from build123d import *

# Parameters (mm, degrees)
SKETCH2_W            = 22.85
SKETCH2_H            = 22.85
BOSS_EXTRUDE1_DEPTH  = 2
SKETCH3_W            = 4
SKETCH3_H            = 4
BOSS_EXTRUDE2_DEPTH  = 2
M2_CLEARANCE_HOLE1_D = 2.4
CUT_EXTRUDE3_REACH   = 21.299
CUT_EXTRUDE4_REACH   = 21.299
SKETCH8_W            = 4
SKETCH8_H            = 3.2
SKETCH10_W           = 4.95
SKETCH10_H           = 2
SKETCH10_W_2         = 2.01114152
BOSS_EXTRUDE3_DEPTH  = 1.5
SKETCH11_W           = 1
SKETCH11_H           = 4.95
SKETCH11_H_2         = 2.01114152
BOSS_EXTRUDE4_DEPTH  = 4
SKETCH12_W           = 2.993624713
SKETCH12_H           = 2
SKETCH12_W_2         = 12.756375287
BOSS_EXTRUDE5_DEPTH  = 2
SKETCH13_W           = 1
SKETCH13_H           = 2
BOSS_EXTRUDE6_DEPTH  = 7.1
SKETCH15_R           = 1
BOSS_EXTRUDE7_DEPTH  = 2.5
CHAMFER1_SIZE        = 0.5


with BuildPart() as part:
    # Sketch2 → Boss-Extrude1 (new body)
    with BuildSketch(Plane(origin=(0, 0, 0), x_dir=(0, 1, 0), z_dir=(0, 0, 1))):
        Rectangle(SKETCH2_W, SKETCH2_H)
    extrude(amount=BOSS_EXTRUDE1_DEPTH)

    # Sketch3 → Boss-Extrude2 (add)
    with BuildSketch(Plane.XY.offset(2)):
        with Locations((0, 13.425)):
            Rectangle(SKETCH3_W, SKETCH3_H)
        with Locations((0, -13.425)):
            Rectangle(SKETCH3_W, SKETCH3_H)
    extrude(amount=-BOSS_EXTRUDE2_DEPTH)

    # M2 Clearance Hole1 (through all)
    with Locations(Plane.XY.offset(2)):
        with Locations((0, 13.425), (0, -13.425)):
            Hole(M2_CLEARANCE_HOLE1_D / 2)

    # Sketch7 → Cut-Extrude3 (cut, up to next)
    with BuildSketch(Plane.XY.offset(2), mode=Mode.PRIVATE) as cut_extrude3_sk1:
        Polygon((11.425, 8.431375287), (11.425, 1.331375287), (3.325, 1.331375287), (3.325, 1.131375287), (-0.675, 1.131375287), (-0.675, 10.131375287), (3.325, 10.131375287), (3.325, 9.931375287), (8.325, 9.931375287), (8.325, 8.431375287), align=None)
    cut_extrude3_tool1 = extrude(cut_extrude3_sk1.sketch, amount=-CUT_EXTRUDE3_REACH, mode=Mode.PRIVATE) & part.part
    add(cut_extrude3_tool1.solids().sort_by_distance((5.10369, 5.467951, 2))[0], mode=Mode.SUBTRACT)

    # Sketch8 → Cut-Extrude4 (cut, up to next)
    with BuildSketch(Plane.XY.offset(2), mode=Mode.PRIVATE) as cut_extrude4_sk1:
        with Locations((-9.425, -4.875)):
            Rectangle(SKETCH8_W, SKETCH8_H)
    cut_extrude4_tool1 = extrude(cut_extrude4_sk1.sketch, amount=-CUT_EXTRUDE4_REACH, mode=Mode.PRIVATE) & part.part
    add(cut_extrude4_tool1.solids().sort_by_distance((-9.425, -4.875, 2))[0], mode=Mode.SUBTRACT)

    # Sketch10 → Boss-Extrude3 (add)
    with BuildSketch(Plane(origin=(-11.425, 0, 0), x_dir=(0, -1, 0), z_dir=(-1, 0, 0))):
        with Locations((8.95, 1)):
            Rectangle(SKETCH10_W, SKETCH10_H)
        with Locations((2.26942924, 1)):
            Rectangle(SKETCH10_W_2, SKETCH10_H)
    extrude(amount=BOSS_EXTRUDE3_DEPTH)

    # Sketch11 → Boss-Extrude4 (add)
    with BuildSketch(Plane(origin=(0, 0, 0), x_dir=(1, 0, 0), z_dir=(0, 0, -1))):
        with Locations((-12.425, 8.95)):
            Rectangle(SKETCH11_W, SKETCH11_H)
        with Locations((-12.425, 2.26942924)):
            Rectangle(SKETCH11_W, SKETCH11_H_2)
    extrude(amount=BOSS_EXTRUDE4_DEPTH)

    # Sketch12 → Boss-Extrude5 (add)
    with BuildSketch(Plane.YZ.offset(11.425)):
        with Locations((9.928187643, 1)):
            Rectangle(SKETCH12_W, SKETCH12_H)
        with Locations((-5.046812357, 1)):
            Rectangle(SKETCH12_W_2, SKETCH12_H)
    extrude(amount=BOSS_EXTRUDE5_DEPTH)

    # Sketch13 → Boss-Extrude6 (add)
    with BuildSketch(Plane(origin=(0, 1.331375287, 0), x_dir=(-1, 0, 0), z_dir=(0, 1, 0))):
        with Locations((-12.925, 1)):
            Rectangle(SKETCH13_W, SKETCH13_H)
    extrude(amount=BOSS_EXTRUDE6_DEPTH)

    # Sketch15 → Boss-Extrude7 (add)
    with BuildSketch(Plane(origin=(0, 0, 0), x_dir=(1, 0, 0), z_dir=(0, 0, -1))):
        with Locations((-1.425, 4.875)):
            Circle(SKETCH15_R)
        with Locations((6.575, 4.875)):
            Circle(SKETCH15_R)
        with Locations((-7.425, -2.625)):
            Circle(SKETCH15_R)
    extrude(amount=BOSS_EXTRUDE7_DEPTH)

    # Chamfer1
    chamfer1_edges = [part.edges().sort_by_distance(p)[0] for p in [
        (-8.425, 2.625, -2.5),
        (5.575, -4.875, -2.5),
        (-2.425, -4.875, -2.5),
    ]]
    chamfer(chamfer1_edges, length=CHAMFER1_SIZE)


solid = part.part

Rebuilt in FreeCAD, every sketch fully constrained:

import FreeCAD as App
import Part
import Sketcher

V = App.Vector


def edges_at(feature, points):
    """Names of the edges that pass closest to the given points."""
    edges = feature.Shape.Edges
    near = lambda p: min(range(len(edges)), key=lambda i: edges[i].distToShape(Part.Vertex(*p))[0])
    return sorted({f"Edge{near(p) + 1}" for p in points})

doc = App.newDocument("Part")
params = doc.addObject("Spreadsheet::Sheet", "Params")
for row, (alias, value) in enumerate([
    ("sketch1_width", "22.85 mm"),
    ("pad1_length", "2 mm"),
    ("sketch2_width", "4 mm"),
    ("pad2_length", "2 mm"),
    ("sketch3_diameter", "2.4 mm"),
    ("hole_diameter", "2.4 mm"),
    ("sketch4_width", "5 mm"),
    ("sketch4_width2", "4 mm"),
    ("sketch4_height", "9 mm"),
    ("sketch4_width3", "3.1 mm"),
    ("sketch4_height2", "7.1 mm"),
    ("sketch5_width", "4 mm"),
    ("sketch5_height", "3.2 mm"),
    ("sketch6_height", "2 mm"),
    ("sketch6_width", "4.95 mm"),
    ("pad3_length", "1.5 mm"),
    ("sketch7_width", "1 mm"),
    ("sketch7_height", "4.95 mm"),
    ("pad4_length", "4 mm"),
    ("sketch8_height", "2 mm"),
    ("pad5_length", "2 mm"),
    ("sketch9_width", "1 mm"),
    ("sketch9_height", "2 mm"),
    ("pad6_length", "7.1 mm"),
    ("sketch10_diameter", "2 mm"),
    ("pad7_length", "2.5 mm"),
    ("chamfer_size", "0.5 mm"),
], start=1):
    params.set(f"A{row}", alias)
    params.set(f"B{row}", "=" + value)
    params.setAlias(f"B{row}", alias)

body = doc.addObject("PartDesign::Body", "Body")

sketch1 = body.newObject("Sketcher::SketchObject", "Sketch")
sketch1.AttachmentSupport = (doc.getObject("XY_Plane"), [""])
sketch1.MapMode = "FlatFace"
sketch1.addGeometry([
    Part.LineSegment(V(-11, -11, 0), V(11, -11, 0)),
    Part.LineSegment(V(11, -11, 0), V(11, 11, 0)),
    Part.LineSegment(V(11, 11, 0), V(-11, 11, 0)),
    Part.LineSegment(V(-11, 11, 0), V(-11, -11, 0)),
], False)
sketch1.addConstraint([
    Sketcher.Constraint("Coincident", 0, 2, 1, 1),
    Sketcher.Constraint("Coincident", 1, 2, 2, 1),
    Sketcher.Constraint("Coincident", 2, 2, 3, 1),
    Sketcher.Constraint("Coincident", 3, 2, 0, 1),
    Sketcher.Constraint("Horizontal", 0),
    Sketcher.Constraint("Vertical", 1),
    Sketcher.Constraint("Horizontal", 2),
    Sketcher.Constraint("Vertical", 3),
    Sketcher.Constraint("Symmetric", 0, 2, 2, 2, -1, 1),
    Sketcher.Constraint("Equal", 2, 1),
    Sketcher.Constraint("DistanceX", 0, 1, 0, 2, 22.85),
])
sketch1.setExpression("Constraints[10]", "Params.sketch1_width")
pad1 = body.newObject("PartDesign::Pad", "Pad")
pad1.Profile = sketch1
pad1.setExpression("Length", "Params.pad1_length")

sketch2 = body.newObject("Sketcher::SketchObject", "Sketch001")
sketch2.AttachmentSupport = (doc.getObject("XY_Plane"), [""])
sketch2.MapMode = "FlatFace"
sketch2.AttachmentOffset = App.Placement(V(0, 0, 2), App.Rotation())
sketch2.addGeometry([
    Part.LineSegment(V(-2, 15.4, 0), V(-2, 11.4, 0)),
    Part.LineSegment(V(-2, 11.4, 0), V(2, 11.4, 0)),
    Part.LineSegment(V(2, 11.4, 0), V(2, 15.4, 0)),
    Part.LineSegment(V(2, 15.4, 0), V(-2, 15.4, 0)),
    Part.LineSegment(V(-2, -11.4, 0), V(-2, -15.4, 0)),
    Part.LineSegment(V(-2, -15.4, 0), V(2, -15.4, 0)),
    Part.LineSegment(V(2, -15.4, 0), V(2, -11.4, 0)),
    Part.LineSegment(V(2, -11.4, 0), V(-2, -11.4, 0)),
], False)
sketch2.addConstraint([
    Sketcher.Constraint("Coincident", 0, 2, 1, 1),
    Sketcher.Constraint("Coincident", 1, 2, 2, 1),
    Sketcher.Constraint("Coincident", 2, 2, 3, 1),
    Sketcher.Constraint("Coincident", 3, 2, 0, 1),
    Sketcher.Constraint("Coincident", 4, 2, 5, 1),
    Sketcher.Constraint("Coincident", 5, 2, 6, 1),
    Sketcher.Constraint("Coincident", 6, 2, 7, 1),
    Sketcher.Constraint("Coincident", 7, 2, 4, 1),
    Sketcher.Constraint("Vertical", 0),
    Sketcher.Constraint("Horizontal", 1),
    Sketcher.Constraint("Vertical", 2),
    Sketcher.Constraint("Horizontal", 3),
    Sketcher.Constraint("Vertical", 4),
    Sketcher.Constraint("Horizontal", 5),
    Sketcher.Constraint("Vertical", 6),
    Sketcher.Constraint("Horizontal", 7),
    Sketcher.Constraint("Symmetric", 2, 2, 4, 2, -1, 1),
    Sketcher.Constraint("Symmetric", 0, 2, 6, 2, -1, 1),
    Sketcher.Constraint("Vertical", 3, 2, 4, 2),
    Sketcher.Constraint("Equal", 7, 0),
    Sketcher.Constraint("DistanceX", 1, 1, 1, 2, 4.0),
    Sketcher.Constraint("DistanceY", 4, 2, 0, 2, 26.85),
])
sketch2.setExpression("Constraints[20]", "Params.sketch2_width")
pad2 = body.newObject("PartDesign::Pad", "Pad001")
pad2.Profile = sketch2
pad2.setExpression("Length", "Params.pad2_length")
pad2.Reversed = True

sketch3 = body.newObject("Sketcher::SketchObject", "Sketch002")
sketch3.AttachmentSupport = (doc.getObject("XY_Plane"), [""])
sketch3.MapMode = "FlatFace"
sketch3.AttachmentOffset = App.Placement(V(0, 0, 2), App.Rotation())
sketch3.addGeometry([
    Part.Circle(V(0, 13.4, 0), V(0, 0, 1), 1.2),
    Part.Circle(V(0, -13.4, 0), V(0, 0, 1), 1.2),
], False)
sketch3.addConstraint([
    Sketcher.Constraint("Equal", 0, 1),
    Sketcher.Constraint("Symmetric", 0, 3, 1, 3, -1, 1),
    Sketcher.Constraint("PointOnObject", 0, 3, -2),
    Sketcher.Constraint("Diameter", 0, 2.4),
    Sketcher.Constraint("DistanceY", 1, 3, 0, 3, 26.85),
])
sketch3.setExpression("Constraints[3]", "Params.sketch3_diameter")
doc.recompute()
hole = body.newObject("PartDesign::Hole", "Hole")
hole.Profile = sketch3
hole.ThreadType = "None"
hole.setExpression("Diameter", "Params.hole_diameter")
hole.DepthType = "ThroughAll"

sketch4 = body.newObject("Sketcher::SketchObject", "Sketch003")
sketch4.AttachmentSupport = (doc.getObject("XY_Plane"), [""])
sketch4.MapMode = "FlatFace"
sketch4.AttachmentOffset = App.Placement(V(0, 0, 2), App.Rotation())
sketch4.addGeometry([
    Part.LineSegment(V(11.43, 1.33, 0), V(11.43, 8.43, 0)),
    Part.LineSegment(V(11.43, 8.43, 0), V(8.32, 8.43, 0)),
    Part.LineSegment(V(8.32, 8.43, 0), V(8.32, 9.93, 0)),
    Part.LineSegment(V(8.32, 9.93, 0), V(3.33, 9.93, 0)),
    Part.LineSegment(V(3.33, 9.93, 0), V(3.33, 10.13, 0)),
    Part.LineSegment(V(3.33, 10.13, 0), V(-0.68, 10.13, 0)),
    Part.LineSegment(V(-0.68, 10.13, 0), V(-0.68, 1.13, 0)),
    Part.LineSegment(V(-0.68, 1.13, 0), V(3.33, 1.13, 0)),
    Part.LineSegment(V(3.33, 1.13, 0), V(3.33, 1.33, 0)),
    Part.LineSegment(V(3.33, 1.33, 0), V(11.43, 1.33, 0)),
], False)
sketch4.addConstraint([
    Sketcher.Constraint("Coincident", 0, 2, 1, 1),
    Sketcher.Constraint("Coincident", 1, 2, 2, 1),
    Sketcher.Constraint("Coincident", 2, 2, 3, 1),
    Sketcher.Constraint("Coincident", 3, 2, 4, 1),
    Sketcher.Constraint("Coincident", 4, 2, 5, 1),
    Sketcher.Constraint("Coincident", 5, 2, 6, 1),
    Sketcher.Constraint("Coincident", 6, 2, 7, 1),
    Sketcher.Constraint("Coincident", 7, 2, 8, 1),
    Sketcher.Constraint("Coincident", 8, 2, 9, 1),
    Sketcher.Constraint("Coincident", 9, 2, 0, 1),
    Sketcher.Constraint("Vertical", 0),
    Sketcher.Constraint("Horizontal", 1),
    Sketcher.Constraint("Vertical", 2),
    Sketcher.Constraint("Horizontal", 3),
    Sketcher.Constraint("Vertical", 4),
    Sketcher.Constraint("Horizontal", 5),
    Sketcher.Constraint("Vertical", 6),
    Sketcher.Constraint("Horizontal", 7),
    Sketcher.Constraint("Vertical", 8),
    Sketcher.Constraint("Horizontal", 9),
    Sketcher.Constraint("Vertical", 4, 2, 7, 2),
    Sketcher.Constraint("Equal", 4, 8),
    Sketcher.Constraint("DistanceX", 3, 2, 3, 1, 5.0),
    Sketcher.Constraint("DistanceX", 5, 2, 5, 1, 4.0),
    Sketcher.Constraint("DistanceY", 6, 2, 6, 1, 9.0),
    Sketcher.Constraint("DistanceX", 1, 2, 1, 1, 3.1),
    Sketcher.Constraint("DistanceY", 0, 1, 0, 2, 7.1),
    Sketcher.Constraint("DistanceY", 2, 1, 2, 2, 1.5),
    Sketcher.Constraint("DistanceX", -1, 1, 0, 2, 11.425),
    Sketcher.Constraint("DistanceY", -1, 1, 0, 2, 8.431375),
])
sketch4.setExpression("Constraints[22]", "Params.sketch4_width")
sketch4.setExpression("Constraints[23]", "Params.sketch4_width2")
sketch4.setExpression("Constraints[24]", "Params.sketch4_height")
sketch4.setExpression("Constraints[25]", "Params.sketch4_width3")
sketch4.setExpression("Constraints[26]", "Params.sketch4_height2")
pocket1 = body.newObject("PartDesign::Pocket", "Pocket")
pocket1.Profile = sketch4
pocket1.Type = "UpToFirst"

sketch5 = body.newObject("Sketcher::SketchObject", "Sketch004")
sketch5.AttachmentSupport = (doc.getObject("XY_Plane"), [""])
sketch5.MapMode = "FlatFace"
sketch5.AttachmentOffset = App.Placement(V(0, 0, 2), App.Rotation())
sketch5.addGeometry([
    Part.LineSegment(V(-11.4, -3.3, 0), V(-11.4, -6.5, 0)),
    Part.LineSegment(V(-11.4, -6.5, 0), V(-7.4, -6.5, 0)),
    Part.LineSegment(V(-7.4, -6.5, 0), V(-7.4, -3.3, 0)),
    Part.LineSegment(V(-7.4, -3.3, 0), V(-11.4, -3.3, 0)),
], False)
sketch5.addConstraint([
    Sketcher.Constraint("Coincident", 0, 2, 1, 1),
    Sketcher.Constraint("Coincident", 1, 2, 2, 1),
    Sketcher.Constraint("Coincident", 2, 2, 3, 1),
    Sketcher.Constraint("Coincident", 3, 2, 0, 1),
    Sketcher.Constraint("Vertical", 0),
    Sketcher.Constraint("Horizontal", 1),
    Sketcher.Constraint("Vertical", 2),
    Sketcher.Constraint("Horizontal", 3),
    Sketcher.Constraint("DistanceX", 1, 1, 1, 2, 4.0),
    Sketcher.Constraint("DistanceY", 0, 2, 0, 1, 3.2),
    Sketcher.Constraint("DistanceX", 0, 2, -1, 1, 11.425),
    Sketcher.Constraint("DistanceY", 0, 2, -1, 1, 6.475),
])
sketch5.setExpression("Constraints[8]", "Params.sketch5_width")
sketch5.setExpression("Constraints[9]", "Params.sketch5_height")
pocket2 = body.newObject("PartDesign::Pocket", "Pocket001")
pocket2.Profile = sketch5
pocket2.Type = "UpToFirst"

sketch6 = body.newObject("Sketcher::SketchObject", "Sketch005")
sketch6.AttachmentSupport = (doc.getObject("YZ_Plane"), [""])
sketch6.MapMode = "FlatFace"
sketch6.AttachmentOffset = App.Placement(V(0, 0, -11.425), App.Rotation())
sketch6.addGeometry([
    Part.LineSegment(V(-6.5, 2, 0), V(-6.5, 0, 0)),
    Part.LineSegment(V(-6.5, 0, 0), V(-11.4, 0, 0)),
    Part.LineSegment(V(-11.4, 0, 0), V(-11.4, 2, 0)),
    Part.LineSegment(V(-11.4, 2, 0), V(-6.5, 2, 0)),
    Part.LineSegment(V(-1.3, 2, 0), V(-1.3, 0, 0)),
    Part.LineSegment(V(-1.3, 0, 0), V(-3.3, 0, 0)),
    Part.LineSegment(V(-3.3, 0, 0), V(-3.3, 2, 0)),
    Part.LineSegment(V(-3.3, 2, 0), V(-1.3, 2, 0)),
], False)
sketch6.addConstraint([
    Sketcher.Constraint("Coincident", 0, 2, 1, 1),
    Sketcher.Constraint("Coincident", 1, 2, 2, 1),
    Sketcher.Constraint("Coincident", 2, 2, 3, 1),
    Sketcher.Constraint("Coincident", 3, 2, 0, 1),
    Sketcher.Constraint("Coincident", 4, 2, 5, 1),
    Sketcher.Constraint("Coincident", 5, 2, 6, 1),
    Sketcher.Constraint("Coincident", 6, 2, 7, 1),
    Sketcher.Constraint("Coincident", 7, 2, 4, 1),
    Sketcher.Constraint("Vertical", 0),
    Sketcher.Constraint("Horizontal", 1),
    Sketcher.Constraint("Vertical", 2),
    Sketcher.Constraint("Horizontal", 3),
    Sketcher.Constraint("Vertical", 4),
    Sketcher.Constraint("Horizontal", 5),
    Sketcher.Constraint("Vertical", 6),
    Sketcher.Constraint("Horizontal", 7),
    Sketcher.Constraint("PointOnObject", 0, 2, -1),
    Sketcher.Constraint("PointOnObject", 4, 2, -1),
    Sketcher.Constraint("Horizontal", 3, 2, 6, 2),
    Sketcher.Constraint("DistanceY", 0, 2, 0, 1, 2.0),
    Sketcher.Constraint("DistanceX", 1, 2, 1, 1, 4.95),
    Sketcher.Constraint("DistanceX", 0, 2, 5, 2, 3.2),
    Sketcher.Constraint("DistanceX", 0, 2, -1, 1, 6.475),
    Sketcher.Constraint("DistanceX", 5, 2, 5, 1, 2.011142),
])
sketch6.setExpression("Constraints[19]", "Params.sketch6_height")
sketch6.setExpression("Constraints[20]", "Params.sketch6_width")
pad3 = body.newObject("PartDesign::Pad", "Pad002")
pad3.Profile = sketch6
pad3.setExpression("Length", "Params.pad3_length")
pad3.Reversed = True

sketch7 = body.newObject("Sketcher::SketchObject", "Sketch006")
sketch7.AttachmentSupport = (doc.getObject("XY_Plane"), [""])
sketch7.MapMode = "FlatFace"
sketch7.addGeometry([
    Part.LineSegment(V(-12.9, -11.4, 0), V(-12.9, -6.5, 0)),
    Part.LineSegment(V(-12.9, -6.5, 0), V(-11.9, -6.5, 0)),
    Part.LineSegment(V(-11.9, -6.5, 0), V(-11.9, -11.4, 0)),
    Part.LineSegment(V(-11.9, -11.4, 0), V(-12.9, -11.4, 0)),
    Part.LineSegment(V(-12.9, -3.3, 0), V(-12.9, -1.3, 0)),
    Part.LineSegment(V(-12.9, -1.3, 0), V(-11.9, -1.3, 0)),
    Part.LineSegment(V(-11.9, -1.3, 0), V(-11.9, -3.3, 0)),
    Part.LineSegment(V(-11.9, -3.3, 0), V(-12.9, -3.3, 0)),
], False)
sketch7.addConstraint([
    Sketcher.Constraint("Coincident", 0, 2, 1, 1),
    Sketcher.Constraint("Coincident", 1, 2, 2, 1),
    Sketcher.Constraint("Coincident", 2, 2, 3, 1),
    Sketcher.Constraint("Coincident", 3, 2, 0, 1),
    Sketcher.Constraint("Coincident", 4, 2, 5, 1),
    Sketcher.Constraint("Coincident", 5, 2, 6, 1),
    Sketcher.Constraint("Coincident", 6, 2, 7, 1),
    Sketcher.Constraint("Coincident", 7, 2, 4, 1),
    Sketcher.Constraint("Vertical", 0),
    Sketcher.Constraint("Horizontal", 1),
    Sketcher.Constraint("Vertical", 2),
    Sketcher.Constraint("Horizontal", 3),
    Sketcher.Constraint("Vertical", 4),
    Sketcher.Constraint("Horizontal", 5),
    Sketcher.Constraint("Vertical", 6),
    Sketcher.Constraint("Horizontal", 7),
    Sketcher.Constraint("Vertical", 3, 2, 4, 2),
    Sketcher.Constraint("Vertical", 2, 2, 5, 2),
    Sketcher.Constraint("DistanceX", 1, 1, 1, 2, 1.0),
    Sketcher.Constraint("DistanceY", 0, 1, 0, 2, 4.95),
    Sketcher.Constraint("DistanceY", 1, 2, 6, 2, 3.2),
    Sketcher.Constraint("DistanceX", 0, 2, -1, 1, 12.925),
    Sketcher.Constraint("DistanceY", 0, 2, -1, 1, 6.475),
    Sketcher.Constraint("DistanceY", 4, 1, 4, 2, 2.011142),
])
sketch7.setExpression("Constraints[18]", "Params.sketch7_width")
sketch7.setExpression("Constraints[19]", "Params.sketch7_height")
pad4 = body.newObject("PartDesign::Pad", "Pad003")
pad4.Profile = sketch7
pad4.setExpression("Length", "Params.pad4_length")
pad4.Reversed = True

sketch8 = body.newObject("Sketcher::SketchObject", "Sketch007")
sketch8.AttachmentSupport = (doc.getObject("YZ_Plane"), [""])
sketch8.MapMode = "FlatFace"
sketch8.AttachmentOffset = App.Placement(V(0, 0, 11.425), App.Rotation())
sketch8.addGeometry([
    Part.LineSegment(V(8.4, 2, 0), V(8.4, 0, 0)),
    Part.LineSegment(V(8.4, 0, 0), V(11.4, 0, 0)),
    Part.LineSegment(V(11.4, 0, 0), V(11.4, 2, 0)),
    Part.LineSegment(V(11.4, 2, 0), V(8.4, 2, 0)),
    Part.LineSegment(V(-11.4, 2, 0), V(-11.4, 0, 0)),
    Part.LineSegment(V(-11.4, 0, 0), V(1.3, 0, 0)),
    Part.LineSegment(V(1.3, 0, 0), V(1.3, 2, 0)),
    Part.LineSegment(V(1.3, 2, 0), V(-11.4, 2, 0)),
], False)
sketch8.addConstraint([
    Sketcher.Constraint("Coincident", 0, 2, 1, 1),
    Sketcher.Constraint("Coincident", 1, 2, 2, 1),
    Sketcher.Constraint("Coincident", 2, 2, 3, 1),
    Sketcher.Constraint("Coincident", 3, 2, 0, 1),
    Sketcher.Constraint("Coincident", 4, 2, 5, 1),
    Sketcher.Constraint("Coincident", 5, 2, 6, 1),
    Sketcher.Constraint("Coincident", 6, 2, 7, 1),
    Sketcher.Constraint("Coincident", 7, 2, 4, 1),
    Sketcher.Constraint("Vertical", 0),
    Sketcher.Constraint("Horizontal", 1),
    Sketcher.Constraint("Vertical", 2),
    Sketcher.Constraint("Horizontal", 3),
    Sketcher.Constraint("Vertical", 4),
    Sketcher.Constraint("Horizontal", 5),
    Sketcher.Constraint("Vertical", 6),
    Sketcher.Constraint("Horizontal", 7),
    Sketcher.Constraint("Symmetric", 1, 2, 4, 2, -1, 1),
    Sketcher.Constraint("PointOnObject", 0, 2, -1),
    Sketcher.Constraint("Horizontal", 3, 2, 6, 2),
    Sketcher.Constraint("DistanceY", 0, 2, 0, 1, 2.0),
    Sketcher.Constraint("DistanceX", 5, 2, 0, 2, 7.1),
    Sketcher.Constraint("DistanceX", 4, 2, 1, 2, 22.85),
    Sketcher.Constraint("DistanceX", 1, 1, 1, 2, 2.993625),
])
sketch8.setExpression("Constraints[19]", "Params.sketch8_height")
pad5 = body.newObject("PartDesign::Pad", "Pad004")
pad5.Profile = sketch8
pad5.setExpression("Length", "Params.pad5_length")

sketch9 = body.newObject("Sketcher::SketchObject", "Sketch008")
sketch9.AttachmentSupport = (doc.getObject("XZ_Plane"), [""])
sketch9.MapMode = "FlatFace"
sketch9.AttachmentOffset = App.Placement(V(0, 0, -1.331375), App.Rotation())
sketch9.addGeometry([
    Part.LineSegment(V(13.4, 2, 0), V(13.4, 0, 0)),
    Part.LineSegment(V(13.4, 0, 0), V(12.4, 0, 0)),
    Part.LineSegment(V(12.4, 0, 0), V(12.4, 2, 0)),
    Part.LineSegment(V(12.4, 2, 0), V(13.4, 2, 0)),
], False)
sketch9.addConstraint([
    Sketcher.Constraint("Coincident", 0, 2, 1, 1),
    Sketcher.Constraint("Coincident", 1, 2, 2, 1),
    Sketcher.Constraint("Coincident", 2, 2, 3, 1),
    Sketcher.Constraint("Coincident", 3, 2, 0, 1),
    Sketcher.Constraint("Vertical", 0),
    Sketcher.Constraint("Horizontal", 1),
    Sketcher.Constraint("Vertical", 2),
    Sketcher.Constraint("Horizontal", 3),
    Sketcher.Constraint("PointOnObject", 0, 2, -1),
    Sketcher.Constraint("DistanceX", 1, 2, 1, 1, 1.0),
    Sketcher.Constraint("DistanceY", 0, 2, 0, 1, 2.0),
    Sketcher.Constraint("DistanceX", -1, 1, 0, 2, 13.425),
])
sketch9.setExpression("Constraints[9]", "Params.sketch9_width")
sketch9.setExpression("Constraints[10]", "Params.sketch9_height")
pad6 = body.newObject("PartDesign::Pad", "Pad005")
pad6.Profile = sketch9
pad6.setExpression("Length", "Params.pad6_length")
pad6.Reversed = True

sketch10 = body.newObject("Sketcher::SketchObject", "Sketch009")
sketch10.AttachmentSupport = (doc.getObject("XY_Plane"), [""])
sketch10.MapMode = "FlatFace"
sketch10.addGeometry([
    Part.Circle(V(-1.4, -4.9, 0), V(0, 0, 1), 1),
    Part.Circle(V(6.6, -4.9, 0), V(0, 0, 1), 1),
    Part.Circle(V(-7.4, 2.6, 0), V(0, 0, 1), 1),
], False)
sketch10.addConstraint([
    Sketcher.Constraint("Equal", 0, 1),
    Sketcher.Constraint("Equal", 1, 2),
    Sketcher.Constraint("Horizontal", 0, 3, 1, 3),
    Sketcher.Constraint("Diameter", 0, 2.0),
    Sketcher.Constraint("DistanceX", 0, 3, 1, 3, 8.0),
    Sketcher.Constraint("DistanceX", 2, 3, 0, 3, 6.0),
    Sketcher.Constraint("DistanceY", 0, 3, 2, 3, 7.5),
    Sketcher.Constraint("DistanceX", 0, 3, -1, 1, 1.425),
    Sketcher.Constraint("DistanceY", 0, 3, -1, 1, 4.875),
])
sketch10.setExpression("Constraints[3]", "Params.sketch10_diameter")
pad7 = body.newObject("PartDesign::Pad", "Pad006")
pad7.Profile = sketch10
pad7.setExpression("Length", "Params.pad7_length")
pad7.Reversed = True
doc.recompute()

chamfer = body.newObject("PartDesign::Chamfer", "Chamfer")
chamfer.Base = (pad7, edges_at(pad7, [(-8.425, 2.625, -2.5), (5.575, -4.875, -2.5), (-2.425, -4.875, -2.5)]))
chamfer.setExpression("Size", "Params.chamfer_size")

doc.recompute()
